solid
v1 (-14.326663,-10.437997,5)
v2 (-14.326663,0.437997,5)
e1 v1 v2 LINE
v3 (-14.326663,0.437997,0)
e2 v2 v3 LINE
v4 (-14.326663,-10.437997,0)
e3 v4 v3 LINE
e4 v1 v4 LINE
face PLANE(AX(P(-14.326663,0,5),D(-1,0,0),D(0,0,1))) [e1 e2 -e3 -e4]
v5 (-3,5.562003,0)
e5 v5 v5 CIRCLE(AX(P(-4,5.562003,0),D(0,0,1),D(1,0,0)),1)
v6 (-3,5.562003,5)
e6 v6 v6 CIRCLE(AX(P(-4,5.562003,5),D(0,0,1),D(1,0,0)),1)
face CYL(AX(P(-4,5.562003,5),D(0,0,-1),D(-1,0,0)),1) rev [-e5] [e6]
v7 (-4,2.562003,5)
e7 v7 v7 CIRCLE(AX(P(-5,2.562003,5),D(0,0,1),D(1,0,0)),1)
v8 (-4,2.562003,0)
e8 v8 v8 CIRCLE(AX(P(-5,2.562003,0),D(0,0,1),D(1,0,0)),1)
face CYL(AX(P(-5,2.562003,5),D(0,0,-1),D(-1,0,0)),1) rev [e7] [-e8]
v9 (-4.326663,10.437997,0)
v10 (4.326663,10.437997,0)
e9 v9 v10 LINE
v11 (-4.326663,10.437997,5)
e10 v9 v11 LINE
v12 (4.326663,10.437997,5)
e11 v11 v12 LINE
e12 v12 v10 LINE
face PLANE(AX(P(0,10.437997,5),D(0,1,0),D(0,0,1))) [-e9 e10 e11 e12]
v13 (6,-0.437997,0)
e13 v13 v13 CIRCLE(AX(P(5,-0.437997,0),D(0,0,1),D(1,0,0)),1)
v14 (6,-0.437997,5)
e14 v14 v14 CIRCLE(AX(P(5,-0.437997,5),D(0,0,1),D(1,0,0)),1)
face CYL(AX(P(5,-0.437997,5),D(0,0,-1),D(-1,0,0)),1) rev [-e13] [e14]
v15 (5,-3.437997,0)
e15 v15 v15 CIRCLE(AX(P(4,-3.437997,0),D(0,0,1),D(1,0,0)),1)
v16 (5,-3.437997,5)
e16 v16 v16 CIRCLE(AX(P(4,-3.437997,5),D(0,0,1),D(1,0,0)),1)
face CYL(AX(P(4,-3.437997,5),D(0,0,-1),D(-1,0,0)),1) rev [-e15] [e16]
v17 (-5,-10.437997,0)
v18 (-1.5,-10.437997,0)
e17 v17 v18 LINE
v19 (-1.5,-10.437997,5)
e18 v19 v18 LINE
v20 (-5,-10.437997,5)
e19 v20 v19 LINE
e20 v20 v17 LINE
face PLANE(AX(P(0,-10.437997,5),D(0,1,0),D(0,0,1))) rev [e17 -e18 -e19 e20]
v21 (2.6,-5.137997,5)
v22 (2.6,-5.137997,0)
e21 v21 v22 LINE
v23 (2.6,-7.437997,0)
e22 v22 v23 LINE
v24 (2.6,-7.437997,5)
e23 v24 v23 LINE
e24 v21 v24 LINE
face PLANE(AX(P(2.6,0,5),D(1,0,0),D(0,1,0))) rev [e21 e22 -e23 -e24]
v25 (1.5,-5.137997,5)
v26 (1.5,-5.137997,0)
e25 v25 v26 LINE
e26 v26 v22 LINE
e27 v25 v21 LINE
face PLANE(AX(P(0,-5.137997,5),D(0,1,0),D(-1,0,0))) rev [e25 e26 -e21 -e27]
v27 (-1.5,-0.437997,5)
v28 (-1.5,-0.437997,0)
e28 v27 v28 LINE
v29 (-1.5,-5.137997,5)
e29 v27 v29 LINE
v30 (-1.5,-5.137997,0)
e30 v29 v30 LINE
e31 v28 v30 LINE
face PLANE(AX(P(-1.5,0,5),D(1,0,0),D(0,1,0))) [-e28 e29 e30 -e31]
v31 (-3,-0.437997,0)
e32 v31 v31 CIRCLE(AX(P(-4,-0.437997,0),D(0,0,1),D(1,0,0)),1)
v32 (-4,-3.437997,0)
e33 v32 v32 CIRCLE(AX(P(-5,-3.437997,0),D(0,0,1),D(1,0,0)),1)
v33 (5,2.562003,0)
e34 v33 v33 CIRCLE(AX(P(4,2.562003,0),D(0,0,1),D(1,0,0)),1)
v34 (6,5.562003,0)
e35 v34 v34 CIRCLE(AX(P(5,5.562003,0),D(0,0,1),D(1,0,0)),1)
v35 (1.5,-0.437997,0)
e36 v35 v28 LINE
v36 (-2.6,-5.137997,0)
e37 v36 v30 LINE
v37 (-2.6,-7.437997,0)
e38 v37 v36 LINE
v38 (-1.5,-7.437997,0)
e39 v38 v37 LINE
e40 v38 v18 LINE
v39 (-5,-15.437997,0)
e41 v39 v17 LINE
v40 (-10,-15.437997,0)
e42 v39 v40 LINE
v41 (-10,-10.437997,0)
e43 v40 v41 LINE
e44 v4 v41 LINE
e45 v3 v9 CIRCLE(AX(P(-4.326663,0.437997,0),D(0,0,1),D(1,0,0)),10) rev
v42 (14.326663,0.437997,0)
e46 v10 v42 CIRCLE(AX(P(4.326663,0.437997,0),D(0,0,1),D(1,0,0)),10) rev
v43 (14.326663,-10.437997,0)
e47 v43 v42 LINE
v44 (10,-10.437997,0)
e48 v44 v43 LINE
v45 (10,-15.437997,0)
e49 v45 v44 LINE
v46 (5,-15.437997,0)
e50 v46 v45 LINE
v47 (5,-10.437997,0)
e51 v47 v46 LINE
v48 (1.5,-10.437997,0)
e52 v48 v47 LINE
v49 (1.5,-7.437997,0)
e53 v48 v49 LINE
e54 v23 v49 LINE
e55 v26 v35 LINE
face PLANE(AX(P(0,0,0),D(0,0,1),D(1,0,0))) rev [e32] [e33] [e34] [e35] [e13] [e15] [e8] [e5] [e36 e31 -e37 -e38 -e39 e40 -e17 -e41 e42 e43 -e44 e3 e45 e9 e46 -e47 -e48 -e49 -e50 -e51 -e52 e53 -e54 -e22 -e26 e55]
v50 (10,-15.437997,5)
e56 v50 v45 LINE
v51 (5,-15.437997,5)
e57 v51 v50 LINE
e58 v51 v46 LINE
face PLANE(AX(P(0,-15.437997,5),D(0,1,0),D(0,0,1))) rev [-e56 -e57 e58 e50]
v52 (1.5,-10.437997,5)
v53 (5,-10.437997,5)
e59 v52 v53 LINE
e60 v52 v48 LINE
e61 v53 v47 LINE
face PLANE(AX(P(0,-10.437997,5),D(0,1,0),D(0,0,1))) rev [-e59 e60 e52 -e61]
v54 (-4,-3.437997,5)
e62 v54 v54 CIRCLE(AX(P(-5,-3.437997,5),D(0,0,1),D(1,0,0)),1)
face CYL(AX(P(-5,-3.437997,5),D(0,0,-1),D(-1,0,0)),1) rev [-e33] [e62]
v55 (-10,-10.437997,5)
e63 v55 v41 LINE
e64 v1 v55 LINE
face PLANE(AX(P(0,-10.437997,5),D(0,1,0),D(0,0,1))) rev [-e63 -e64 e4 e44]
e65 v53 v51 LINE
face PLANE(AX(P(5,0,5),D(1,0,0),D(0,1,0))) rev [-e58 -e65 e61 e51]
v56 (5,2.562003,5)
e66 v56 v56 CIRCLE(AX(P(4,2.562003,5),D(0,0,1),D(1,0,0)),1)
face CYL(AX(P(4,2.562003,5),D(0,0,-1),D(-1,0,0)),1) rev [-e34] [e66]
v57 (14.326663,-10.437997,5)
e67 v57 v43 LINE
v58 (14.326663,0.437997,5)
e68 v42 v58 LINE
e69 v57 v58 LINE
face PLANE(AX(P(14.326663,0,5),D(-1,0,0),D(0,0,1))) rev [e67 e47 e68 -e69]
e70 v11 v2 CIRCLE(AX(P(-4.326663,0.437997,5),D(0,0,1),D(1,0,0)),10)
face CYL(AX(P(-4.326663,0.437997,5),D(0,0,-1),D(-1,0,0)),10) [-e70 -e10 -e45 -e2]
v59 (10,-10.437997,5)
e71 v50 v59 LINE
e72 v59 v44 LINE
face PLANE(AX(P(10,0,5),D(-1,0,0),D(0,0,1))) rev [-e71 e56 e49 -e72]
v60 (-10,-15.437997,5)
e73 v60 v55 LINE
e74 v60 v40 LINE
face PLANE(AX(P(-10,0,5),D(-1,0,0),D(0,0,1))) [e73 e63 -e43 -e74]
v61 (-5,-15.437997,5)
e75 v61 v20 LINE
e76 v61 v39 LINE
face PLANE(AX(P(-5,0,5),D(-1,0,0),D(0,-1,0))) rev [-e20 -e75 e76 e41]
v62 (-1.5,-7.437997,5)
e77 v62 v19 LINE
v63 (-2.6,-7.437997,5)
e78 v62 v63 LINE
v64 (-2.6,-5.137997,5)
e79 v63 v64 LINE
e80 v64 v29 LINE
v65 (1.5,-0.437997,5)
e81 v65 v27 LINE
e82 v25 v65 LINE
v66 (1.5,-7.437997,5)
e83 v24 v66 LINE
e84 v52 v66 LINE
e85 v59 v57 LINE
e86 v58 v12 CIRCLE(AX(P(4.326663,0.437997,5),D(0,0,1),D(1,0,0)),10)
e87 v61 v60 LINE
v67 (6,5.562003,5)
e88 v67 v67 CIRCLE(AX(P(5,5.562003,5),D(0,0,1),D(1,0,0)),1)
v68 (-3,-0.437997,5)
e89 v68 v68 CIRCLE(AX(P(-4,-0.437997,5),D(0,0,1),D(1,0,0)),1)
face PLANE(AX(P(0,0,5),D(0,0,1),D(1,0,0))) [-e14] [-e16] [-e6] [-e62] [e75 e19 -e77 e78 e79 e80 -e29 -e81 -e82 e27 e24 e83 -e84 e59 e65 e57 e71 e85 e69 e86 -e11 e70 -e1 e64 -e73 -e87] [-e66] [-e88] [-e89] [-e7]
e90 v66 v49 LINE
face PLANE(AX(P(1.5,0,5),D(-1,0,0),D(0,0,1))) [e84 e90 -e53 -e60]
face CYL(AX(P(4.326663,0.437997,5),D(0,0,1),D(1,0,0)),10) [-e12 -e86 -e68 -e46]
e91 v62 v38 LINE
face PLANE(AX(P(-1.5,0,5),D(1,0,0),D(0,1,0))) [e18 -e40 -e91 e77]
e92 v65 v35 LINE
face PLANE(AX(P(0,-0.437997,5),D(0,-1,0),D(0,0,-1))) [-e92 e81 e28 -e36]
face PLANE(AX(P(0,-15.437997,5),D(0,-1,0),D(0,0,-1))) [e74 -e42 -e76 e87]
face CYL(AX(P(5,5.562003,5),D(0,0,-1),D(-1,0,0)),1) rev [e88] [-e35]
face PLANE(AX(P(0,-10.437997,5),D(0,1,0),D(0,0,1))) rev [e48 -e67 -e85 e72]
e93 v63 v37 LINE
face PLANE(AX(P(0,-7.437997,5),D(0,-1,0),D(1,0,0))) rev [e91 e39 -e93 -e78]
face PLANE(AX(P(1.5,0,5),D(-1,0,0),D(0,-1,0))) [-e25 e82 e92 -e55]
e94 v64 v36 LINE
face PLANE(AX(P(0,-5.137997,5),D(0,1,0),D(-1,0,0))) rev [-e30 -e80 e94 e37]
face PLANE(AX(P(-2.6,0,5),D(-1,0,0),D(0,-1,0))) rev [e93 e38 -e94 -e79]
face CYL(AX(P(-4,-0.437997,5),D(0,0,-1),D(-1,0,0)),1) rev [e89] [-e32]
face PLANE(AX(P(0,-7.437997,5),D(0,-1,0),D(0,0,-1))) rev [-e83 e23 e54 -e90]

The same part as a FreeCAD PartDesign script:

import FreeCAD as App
import Part
import Sketcher
from FreeCAD import Vector
Q = App.Units.Quantity


def edges_at(feature, points):
    """Names of the edges that pass closest to the given points."""
    edges = feature.Shape.Edges
    near = lambda p: min(range(len(edges)), key=lambda i: edges[i].distToShape(Part.Vertex(*p))[0])
    return sorted({f"Edge{near(p) + 1}" for p in points})


def add_polygon(sketch, points):
    """Adds a closed chain of lines whose ends are joined by coincident constraints."""
    first, n = sketch.GeometryCount, len(points)
    for a, b in zip(points, points[1:] + points[:1]):
        sketch.addGeometry(Part.LineSegment(App.Vector(*a, 0), App.Vector(*b, 0)), False)
    for i in range(n):
        sketch.addConstraint(Sketcher.Constraint("Coincident", first + i, 2, first + (i + 1) % n, 1))

doc = App.newDocument("Part")
body = doc.addObject("PartDesign::Body", "Body")

# Sketch on XY plane
sketch1 = body.newObject("Sketcher::SketchObject", "Sketch")
sketch1.AttachmentSupport = (doc.getObject("XY_Plane"), [""])
sketch1.MapMode = "FlatFace"
add_polygon(sketch1, [(-14.3, 10.4), (-14.3, -10.4), (-10, -10.4), (-10, -15.4), (-5, -15.4), (-5, -10.4), (-1.5, -10.4), (-1.5, -7.4), (-2.6, -7.4), (-2.6, -5.1), (-1.5, -5.1), (-1.5, -0.4), (1.5, -0.4), (1.5, -5.1), (2.6, -5.1), (2.6, -7.4), (1.5, -7.4), (1.5, -10.4), (5, -10.4), (5, -15.4), (10, -15.4), (10, -10.4), (14.3, -10.4), (14.3, 10.4)])  # lines 0-23
sketch1.addGeometry(Part.Circle(Vector(-5, -3.4, 0), Vector(0, 0, 1), 1), False)  # 24
sketch1.addGeometry(Part.Circle(Vector(-4, -0.4, 0), Vector(0, 0, 1), 1), False)  # 25
sketch1.addGeometry(Part.Circle(Vector(4, -3.4, 0), Vector(0, 0, 1), 1), False)  # 26
sketch1.addGeometry(Part.Circle(Vector(5, -0.4, 0), Vector(0, 0, 1), 1), False)  # 27
sketch1.addGeometry(Part.Circle(Vector(-5, 2.6, 0), Vector(0, 0, 1), 1), False)  # 28
sketch1.addGeometry(Part.Circle(Vector(-4, 5.6, 0), Vector(0, 0, 1), 1), False)  # 29
sketch1.addGeometry(Part.Circle(Vector(4, 2.6, 0), Vector(0, 0, 1), 1), False)  # 30
sketch1.addGeometry(Part.Circle(Vector(5, 5.6, 0), Vector(0, 0, 1), 1), False)  # 31
sketch1.addConstraint(Sketcher.Constraint("Vertical", 0))
sketch1.addConstraint(Sketcher.Constraint("Horizontal", 1))
sketch1.addConstraint(Sketcher.Constraint("Vertical", 2))
sketch1.addConstraint(Sketcher.Constraint("Horizontal", 3))
sketch1.addConstraint(Sketcher.Constraint("Vertical", 4))
sketch1.addConstraint(Sketcher.Constraint("Horizontal", 5))
sketch1.addConstraint(Sketcher.Constraint("Vertical", 6))
sketch1.addConstraint(Sketcher.Constraint("Horizontal", 7))
sketch1.addConstraint(Sketcher.Constraint("Vertical", 8))
sketch1.addConstraint(Sketcher.Constraint("Horizontal", 9))
sketch1.addConstraint(Sketcher.Constraint("Vertical", 10))
sketch1.addConstraint(Sketcher.Constraint("Horizontal", 11))
sketch1.addConstraint(Sketcher.Constraint("Vertical", 12))
sketch1.addConstraint(Sketcher.Constraint("Horizontal", 13))
sketch1.addConstraint(Sketcher.Constraint("Vertical", 14))
sketch1.addConstraint(Sketcher.Constraint("Horizontal", 15))
sketch1.addConstraint(Sketcher.Constraint("Vertical", 16))
sketch1.addConstraint(Sketcher.Constraint("Horizontal", 17))
sketch1.addConstraint(Sketcher.Constraint("Vertical", 18))
sketch1.addConstraint(Sketcher.Constraint("Horizontal", 19))
sketch1.addConstraint(Sketcher.Constraint("Vertical", 20))
sketch1.addConstraint(Sketcher.Constraint("Horizontal", 21))
sketch1.addConstraint(Sketcher.Constraint("Vertical", 22))
sketch1.addConstraint(Sketcher.Constraint("Horizontal", 23))
sketch1.addConstraint(Sketcher.Constraint("Equal", 24, 25))
sketch1.addConstraint(Sketcher.Constraint("Equal", 25, 26))
sketch1.addConstraint(Sketcher.Constraint("Equal", 26, 27))
sketch1.addConstraint(Sketcher.Constraint("Equal", 27, 28))
sketch1.addConstraint(Sketcher.Constraint("Equal", 28, 29))
sketch1.addConstraint(Sketcher.Constraint("Equal", 29, 30))
sketch1.addConstraint(Sketcher.Constraint("Equal", 30, 31))
sketch1.addConstraint(Sketcher.Constraint("Symmetric", 0, 2, 22, 2, -1, 1))
sketch1.addConstraint(Sketcher.Constraint("Symmetric", 9, 2, 12, 2, -2))
sketch1.addConstraint(Sketcher.Constraint("Symmetric", 7, 2, 14, 2, -2))
sketch1.addConstraint(Sketcher.Constraint("Symmetric", 5, 2, 16, 2, -2))
sketch1.addConstraint(Sketcher.Constraint("Symmetric", 3, 2, 18, 2, -2))
sketch1.addConstraint(Sketcher.Constraint("Symmetric", 1, 2, 20, 2, -2))
sketch1.addConstraint(Sketcher.Constraint("Horizontal", 24, 3, 26, 3))
sketch1.addConstraint(Sketcher.Constraint("Horizontal", 25, 3, 27, 3))
sketch1.addConstraint(Sketcher.Constraint("Horizontal", 28, 3, 30, 3))
sketch1.addConstraint(Sketcher.Constraint("Horizontal", 29, 3, 31, 3))
sketch1.addConstraint(Sketcher.Constraint("Horizontal", 1, 2, 4, 2))
sketch1.addConstraint(Sketcher.Constraint("Horizontal", 27, 3, 10, 2))
sketch1.addConstraint(Sketcher.Constraint("Vertical", 24, 3, 28, 3))
sketch1.addConstraint(Sketcher.Constraint("Vertical", 25, 3, 29, 3))
sketch1.addConstraint(Sketcher.Constraint("Vertical", 26, 3, 30, 3))
sketch1.addConstraint(Sketcher.Constraint("Vertical", 27, 3, 31, 3))
sketch1.addConstraint(Sketcher.Constraint("Vertical", 28, 3, 3, 2))
sketch1.addConstraint(Sketcher.Constraint("Vertical", 6, 2, 9, 2))
sketch1.addConstraint(Sketcher.Constraint("Vertical", 31, 3, 17, 2))
sketch1.addConstraint(Sketcher.Constraint("Equal", 19, 2))
sketch1.addConstraint(Sketcher.Constraint("Equal", 11, 6))
sketch1.addConstraint(Sketcher.Constraint("Diameter", 24, Q("2 mm")))
sketch1.addConstraint(Sketcher.Constraint("DistanceX", 3, 1, 3, 2, Q("5 mm")))
sketch1.addConstraint(Sketcher.Constraint("DistanceX", 11, 1, 11, 2, Q("3 mm")))
sketch1.addConstraint(Sketcher.Constraint("DistanceX", 5, 1, 5, 2, Q("3.5 mm")))
sketch1.addConstraint(Sketcher.Constraint("DistanceX", 7, 2, 7, 1, Q("1.1 mm")))
sketch1.addConstraint(Sketcher.Constraint("DistanceY", 8, 1, 8, 2, Q("2.3 mm")))
sketch1.addConstraint(Sketcher.Constraint("DistanceY", 10, 1, 10, 2, Q("4.7 mm")))
sketch1.addConstraint(Sketcher.Constraint("DistanceX", 25, 3, -1, 1, Q("4 mm")))
sketch1.addConstraint(Sketcher.Constraint("DistanceX", -1, 1, 26, 3, Q("4 mm")))
sketch1.addConstraint(Sketcher.Constraint("DistanceY", 24, 3, 25, 3, Q("3 mm")))
sketch1.addConstraint(Sketcher.Constraint("DistanceY", 25, 3, 28, 3, Q("3 mm")))
sketch1.addConstraint(Sketcher.Constraint("DistanceY", 28, 3, 29, 3, Q("3 mm")))
sketch1.addConstraint(Sketcher.Constraint("DistanceX", 1, 1, 1, 2, Q("4.326663 mm")))
sketch1.addConstraint(Sketcher.Constraint("DistanceY", 0, 2, 0, 1, Q("20.875994 mm")))
pad1 = body.newObject("PartDesign::Pad", "Pad")
pad1.Profile = sketch1
pad1.Length = 5
doc.recompute()

fillet = body.newObject("PartDesign::Fillet", "Fillet")
fillet.Base = (pad1, edges_at(pad1, [(-14.327, 10.438, 2.5), (14.327, 10.438, 2.5)]))
fillet.Radius = 10

doc.recompute()
